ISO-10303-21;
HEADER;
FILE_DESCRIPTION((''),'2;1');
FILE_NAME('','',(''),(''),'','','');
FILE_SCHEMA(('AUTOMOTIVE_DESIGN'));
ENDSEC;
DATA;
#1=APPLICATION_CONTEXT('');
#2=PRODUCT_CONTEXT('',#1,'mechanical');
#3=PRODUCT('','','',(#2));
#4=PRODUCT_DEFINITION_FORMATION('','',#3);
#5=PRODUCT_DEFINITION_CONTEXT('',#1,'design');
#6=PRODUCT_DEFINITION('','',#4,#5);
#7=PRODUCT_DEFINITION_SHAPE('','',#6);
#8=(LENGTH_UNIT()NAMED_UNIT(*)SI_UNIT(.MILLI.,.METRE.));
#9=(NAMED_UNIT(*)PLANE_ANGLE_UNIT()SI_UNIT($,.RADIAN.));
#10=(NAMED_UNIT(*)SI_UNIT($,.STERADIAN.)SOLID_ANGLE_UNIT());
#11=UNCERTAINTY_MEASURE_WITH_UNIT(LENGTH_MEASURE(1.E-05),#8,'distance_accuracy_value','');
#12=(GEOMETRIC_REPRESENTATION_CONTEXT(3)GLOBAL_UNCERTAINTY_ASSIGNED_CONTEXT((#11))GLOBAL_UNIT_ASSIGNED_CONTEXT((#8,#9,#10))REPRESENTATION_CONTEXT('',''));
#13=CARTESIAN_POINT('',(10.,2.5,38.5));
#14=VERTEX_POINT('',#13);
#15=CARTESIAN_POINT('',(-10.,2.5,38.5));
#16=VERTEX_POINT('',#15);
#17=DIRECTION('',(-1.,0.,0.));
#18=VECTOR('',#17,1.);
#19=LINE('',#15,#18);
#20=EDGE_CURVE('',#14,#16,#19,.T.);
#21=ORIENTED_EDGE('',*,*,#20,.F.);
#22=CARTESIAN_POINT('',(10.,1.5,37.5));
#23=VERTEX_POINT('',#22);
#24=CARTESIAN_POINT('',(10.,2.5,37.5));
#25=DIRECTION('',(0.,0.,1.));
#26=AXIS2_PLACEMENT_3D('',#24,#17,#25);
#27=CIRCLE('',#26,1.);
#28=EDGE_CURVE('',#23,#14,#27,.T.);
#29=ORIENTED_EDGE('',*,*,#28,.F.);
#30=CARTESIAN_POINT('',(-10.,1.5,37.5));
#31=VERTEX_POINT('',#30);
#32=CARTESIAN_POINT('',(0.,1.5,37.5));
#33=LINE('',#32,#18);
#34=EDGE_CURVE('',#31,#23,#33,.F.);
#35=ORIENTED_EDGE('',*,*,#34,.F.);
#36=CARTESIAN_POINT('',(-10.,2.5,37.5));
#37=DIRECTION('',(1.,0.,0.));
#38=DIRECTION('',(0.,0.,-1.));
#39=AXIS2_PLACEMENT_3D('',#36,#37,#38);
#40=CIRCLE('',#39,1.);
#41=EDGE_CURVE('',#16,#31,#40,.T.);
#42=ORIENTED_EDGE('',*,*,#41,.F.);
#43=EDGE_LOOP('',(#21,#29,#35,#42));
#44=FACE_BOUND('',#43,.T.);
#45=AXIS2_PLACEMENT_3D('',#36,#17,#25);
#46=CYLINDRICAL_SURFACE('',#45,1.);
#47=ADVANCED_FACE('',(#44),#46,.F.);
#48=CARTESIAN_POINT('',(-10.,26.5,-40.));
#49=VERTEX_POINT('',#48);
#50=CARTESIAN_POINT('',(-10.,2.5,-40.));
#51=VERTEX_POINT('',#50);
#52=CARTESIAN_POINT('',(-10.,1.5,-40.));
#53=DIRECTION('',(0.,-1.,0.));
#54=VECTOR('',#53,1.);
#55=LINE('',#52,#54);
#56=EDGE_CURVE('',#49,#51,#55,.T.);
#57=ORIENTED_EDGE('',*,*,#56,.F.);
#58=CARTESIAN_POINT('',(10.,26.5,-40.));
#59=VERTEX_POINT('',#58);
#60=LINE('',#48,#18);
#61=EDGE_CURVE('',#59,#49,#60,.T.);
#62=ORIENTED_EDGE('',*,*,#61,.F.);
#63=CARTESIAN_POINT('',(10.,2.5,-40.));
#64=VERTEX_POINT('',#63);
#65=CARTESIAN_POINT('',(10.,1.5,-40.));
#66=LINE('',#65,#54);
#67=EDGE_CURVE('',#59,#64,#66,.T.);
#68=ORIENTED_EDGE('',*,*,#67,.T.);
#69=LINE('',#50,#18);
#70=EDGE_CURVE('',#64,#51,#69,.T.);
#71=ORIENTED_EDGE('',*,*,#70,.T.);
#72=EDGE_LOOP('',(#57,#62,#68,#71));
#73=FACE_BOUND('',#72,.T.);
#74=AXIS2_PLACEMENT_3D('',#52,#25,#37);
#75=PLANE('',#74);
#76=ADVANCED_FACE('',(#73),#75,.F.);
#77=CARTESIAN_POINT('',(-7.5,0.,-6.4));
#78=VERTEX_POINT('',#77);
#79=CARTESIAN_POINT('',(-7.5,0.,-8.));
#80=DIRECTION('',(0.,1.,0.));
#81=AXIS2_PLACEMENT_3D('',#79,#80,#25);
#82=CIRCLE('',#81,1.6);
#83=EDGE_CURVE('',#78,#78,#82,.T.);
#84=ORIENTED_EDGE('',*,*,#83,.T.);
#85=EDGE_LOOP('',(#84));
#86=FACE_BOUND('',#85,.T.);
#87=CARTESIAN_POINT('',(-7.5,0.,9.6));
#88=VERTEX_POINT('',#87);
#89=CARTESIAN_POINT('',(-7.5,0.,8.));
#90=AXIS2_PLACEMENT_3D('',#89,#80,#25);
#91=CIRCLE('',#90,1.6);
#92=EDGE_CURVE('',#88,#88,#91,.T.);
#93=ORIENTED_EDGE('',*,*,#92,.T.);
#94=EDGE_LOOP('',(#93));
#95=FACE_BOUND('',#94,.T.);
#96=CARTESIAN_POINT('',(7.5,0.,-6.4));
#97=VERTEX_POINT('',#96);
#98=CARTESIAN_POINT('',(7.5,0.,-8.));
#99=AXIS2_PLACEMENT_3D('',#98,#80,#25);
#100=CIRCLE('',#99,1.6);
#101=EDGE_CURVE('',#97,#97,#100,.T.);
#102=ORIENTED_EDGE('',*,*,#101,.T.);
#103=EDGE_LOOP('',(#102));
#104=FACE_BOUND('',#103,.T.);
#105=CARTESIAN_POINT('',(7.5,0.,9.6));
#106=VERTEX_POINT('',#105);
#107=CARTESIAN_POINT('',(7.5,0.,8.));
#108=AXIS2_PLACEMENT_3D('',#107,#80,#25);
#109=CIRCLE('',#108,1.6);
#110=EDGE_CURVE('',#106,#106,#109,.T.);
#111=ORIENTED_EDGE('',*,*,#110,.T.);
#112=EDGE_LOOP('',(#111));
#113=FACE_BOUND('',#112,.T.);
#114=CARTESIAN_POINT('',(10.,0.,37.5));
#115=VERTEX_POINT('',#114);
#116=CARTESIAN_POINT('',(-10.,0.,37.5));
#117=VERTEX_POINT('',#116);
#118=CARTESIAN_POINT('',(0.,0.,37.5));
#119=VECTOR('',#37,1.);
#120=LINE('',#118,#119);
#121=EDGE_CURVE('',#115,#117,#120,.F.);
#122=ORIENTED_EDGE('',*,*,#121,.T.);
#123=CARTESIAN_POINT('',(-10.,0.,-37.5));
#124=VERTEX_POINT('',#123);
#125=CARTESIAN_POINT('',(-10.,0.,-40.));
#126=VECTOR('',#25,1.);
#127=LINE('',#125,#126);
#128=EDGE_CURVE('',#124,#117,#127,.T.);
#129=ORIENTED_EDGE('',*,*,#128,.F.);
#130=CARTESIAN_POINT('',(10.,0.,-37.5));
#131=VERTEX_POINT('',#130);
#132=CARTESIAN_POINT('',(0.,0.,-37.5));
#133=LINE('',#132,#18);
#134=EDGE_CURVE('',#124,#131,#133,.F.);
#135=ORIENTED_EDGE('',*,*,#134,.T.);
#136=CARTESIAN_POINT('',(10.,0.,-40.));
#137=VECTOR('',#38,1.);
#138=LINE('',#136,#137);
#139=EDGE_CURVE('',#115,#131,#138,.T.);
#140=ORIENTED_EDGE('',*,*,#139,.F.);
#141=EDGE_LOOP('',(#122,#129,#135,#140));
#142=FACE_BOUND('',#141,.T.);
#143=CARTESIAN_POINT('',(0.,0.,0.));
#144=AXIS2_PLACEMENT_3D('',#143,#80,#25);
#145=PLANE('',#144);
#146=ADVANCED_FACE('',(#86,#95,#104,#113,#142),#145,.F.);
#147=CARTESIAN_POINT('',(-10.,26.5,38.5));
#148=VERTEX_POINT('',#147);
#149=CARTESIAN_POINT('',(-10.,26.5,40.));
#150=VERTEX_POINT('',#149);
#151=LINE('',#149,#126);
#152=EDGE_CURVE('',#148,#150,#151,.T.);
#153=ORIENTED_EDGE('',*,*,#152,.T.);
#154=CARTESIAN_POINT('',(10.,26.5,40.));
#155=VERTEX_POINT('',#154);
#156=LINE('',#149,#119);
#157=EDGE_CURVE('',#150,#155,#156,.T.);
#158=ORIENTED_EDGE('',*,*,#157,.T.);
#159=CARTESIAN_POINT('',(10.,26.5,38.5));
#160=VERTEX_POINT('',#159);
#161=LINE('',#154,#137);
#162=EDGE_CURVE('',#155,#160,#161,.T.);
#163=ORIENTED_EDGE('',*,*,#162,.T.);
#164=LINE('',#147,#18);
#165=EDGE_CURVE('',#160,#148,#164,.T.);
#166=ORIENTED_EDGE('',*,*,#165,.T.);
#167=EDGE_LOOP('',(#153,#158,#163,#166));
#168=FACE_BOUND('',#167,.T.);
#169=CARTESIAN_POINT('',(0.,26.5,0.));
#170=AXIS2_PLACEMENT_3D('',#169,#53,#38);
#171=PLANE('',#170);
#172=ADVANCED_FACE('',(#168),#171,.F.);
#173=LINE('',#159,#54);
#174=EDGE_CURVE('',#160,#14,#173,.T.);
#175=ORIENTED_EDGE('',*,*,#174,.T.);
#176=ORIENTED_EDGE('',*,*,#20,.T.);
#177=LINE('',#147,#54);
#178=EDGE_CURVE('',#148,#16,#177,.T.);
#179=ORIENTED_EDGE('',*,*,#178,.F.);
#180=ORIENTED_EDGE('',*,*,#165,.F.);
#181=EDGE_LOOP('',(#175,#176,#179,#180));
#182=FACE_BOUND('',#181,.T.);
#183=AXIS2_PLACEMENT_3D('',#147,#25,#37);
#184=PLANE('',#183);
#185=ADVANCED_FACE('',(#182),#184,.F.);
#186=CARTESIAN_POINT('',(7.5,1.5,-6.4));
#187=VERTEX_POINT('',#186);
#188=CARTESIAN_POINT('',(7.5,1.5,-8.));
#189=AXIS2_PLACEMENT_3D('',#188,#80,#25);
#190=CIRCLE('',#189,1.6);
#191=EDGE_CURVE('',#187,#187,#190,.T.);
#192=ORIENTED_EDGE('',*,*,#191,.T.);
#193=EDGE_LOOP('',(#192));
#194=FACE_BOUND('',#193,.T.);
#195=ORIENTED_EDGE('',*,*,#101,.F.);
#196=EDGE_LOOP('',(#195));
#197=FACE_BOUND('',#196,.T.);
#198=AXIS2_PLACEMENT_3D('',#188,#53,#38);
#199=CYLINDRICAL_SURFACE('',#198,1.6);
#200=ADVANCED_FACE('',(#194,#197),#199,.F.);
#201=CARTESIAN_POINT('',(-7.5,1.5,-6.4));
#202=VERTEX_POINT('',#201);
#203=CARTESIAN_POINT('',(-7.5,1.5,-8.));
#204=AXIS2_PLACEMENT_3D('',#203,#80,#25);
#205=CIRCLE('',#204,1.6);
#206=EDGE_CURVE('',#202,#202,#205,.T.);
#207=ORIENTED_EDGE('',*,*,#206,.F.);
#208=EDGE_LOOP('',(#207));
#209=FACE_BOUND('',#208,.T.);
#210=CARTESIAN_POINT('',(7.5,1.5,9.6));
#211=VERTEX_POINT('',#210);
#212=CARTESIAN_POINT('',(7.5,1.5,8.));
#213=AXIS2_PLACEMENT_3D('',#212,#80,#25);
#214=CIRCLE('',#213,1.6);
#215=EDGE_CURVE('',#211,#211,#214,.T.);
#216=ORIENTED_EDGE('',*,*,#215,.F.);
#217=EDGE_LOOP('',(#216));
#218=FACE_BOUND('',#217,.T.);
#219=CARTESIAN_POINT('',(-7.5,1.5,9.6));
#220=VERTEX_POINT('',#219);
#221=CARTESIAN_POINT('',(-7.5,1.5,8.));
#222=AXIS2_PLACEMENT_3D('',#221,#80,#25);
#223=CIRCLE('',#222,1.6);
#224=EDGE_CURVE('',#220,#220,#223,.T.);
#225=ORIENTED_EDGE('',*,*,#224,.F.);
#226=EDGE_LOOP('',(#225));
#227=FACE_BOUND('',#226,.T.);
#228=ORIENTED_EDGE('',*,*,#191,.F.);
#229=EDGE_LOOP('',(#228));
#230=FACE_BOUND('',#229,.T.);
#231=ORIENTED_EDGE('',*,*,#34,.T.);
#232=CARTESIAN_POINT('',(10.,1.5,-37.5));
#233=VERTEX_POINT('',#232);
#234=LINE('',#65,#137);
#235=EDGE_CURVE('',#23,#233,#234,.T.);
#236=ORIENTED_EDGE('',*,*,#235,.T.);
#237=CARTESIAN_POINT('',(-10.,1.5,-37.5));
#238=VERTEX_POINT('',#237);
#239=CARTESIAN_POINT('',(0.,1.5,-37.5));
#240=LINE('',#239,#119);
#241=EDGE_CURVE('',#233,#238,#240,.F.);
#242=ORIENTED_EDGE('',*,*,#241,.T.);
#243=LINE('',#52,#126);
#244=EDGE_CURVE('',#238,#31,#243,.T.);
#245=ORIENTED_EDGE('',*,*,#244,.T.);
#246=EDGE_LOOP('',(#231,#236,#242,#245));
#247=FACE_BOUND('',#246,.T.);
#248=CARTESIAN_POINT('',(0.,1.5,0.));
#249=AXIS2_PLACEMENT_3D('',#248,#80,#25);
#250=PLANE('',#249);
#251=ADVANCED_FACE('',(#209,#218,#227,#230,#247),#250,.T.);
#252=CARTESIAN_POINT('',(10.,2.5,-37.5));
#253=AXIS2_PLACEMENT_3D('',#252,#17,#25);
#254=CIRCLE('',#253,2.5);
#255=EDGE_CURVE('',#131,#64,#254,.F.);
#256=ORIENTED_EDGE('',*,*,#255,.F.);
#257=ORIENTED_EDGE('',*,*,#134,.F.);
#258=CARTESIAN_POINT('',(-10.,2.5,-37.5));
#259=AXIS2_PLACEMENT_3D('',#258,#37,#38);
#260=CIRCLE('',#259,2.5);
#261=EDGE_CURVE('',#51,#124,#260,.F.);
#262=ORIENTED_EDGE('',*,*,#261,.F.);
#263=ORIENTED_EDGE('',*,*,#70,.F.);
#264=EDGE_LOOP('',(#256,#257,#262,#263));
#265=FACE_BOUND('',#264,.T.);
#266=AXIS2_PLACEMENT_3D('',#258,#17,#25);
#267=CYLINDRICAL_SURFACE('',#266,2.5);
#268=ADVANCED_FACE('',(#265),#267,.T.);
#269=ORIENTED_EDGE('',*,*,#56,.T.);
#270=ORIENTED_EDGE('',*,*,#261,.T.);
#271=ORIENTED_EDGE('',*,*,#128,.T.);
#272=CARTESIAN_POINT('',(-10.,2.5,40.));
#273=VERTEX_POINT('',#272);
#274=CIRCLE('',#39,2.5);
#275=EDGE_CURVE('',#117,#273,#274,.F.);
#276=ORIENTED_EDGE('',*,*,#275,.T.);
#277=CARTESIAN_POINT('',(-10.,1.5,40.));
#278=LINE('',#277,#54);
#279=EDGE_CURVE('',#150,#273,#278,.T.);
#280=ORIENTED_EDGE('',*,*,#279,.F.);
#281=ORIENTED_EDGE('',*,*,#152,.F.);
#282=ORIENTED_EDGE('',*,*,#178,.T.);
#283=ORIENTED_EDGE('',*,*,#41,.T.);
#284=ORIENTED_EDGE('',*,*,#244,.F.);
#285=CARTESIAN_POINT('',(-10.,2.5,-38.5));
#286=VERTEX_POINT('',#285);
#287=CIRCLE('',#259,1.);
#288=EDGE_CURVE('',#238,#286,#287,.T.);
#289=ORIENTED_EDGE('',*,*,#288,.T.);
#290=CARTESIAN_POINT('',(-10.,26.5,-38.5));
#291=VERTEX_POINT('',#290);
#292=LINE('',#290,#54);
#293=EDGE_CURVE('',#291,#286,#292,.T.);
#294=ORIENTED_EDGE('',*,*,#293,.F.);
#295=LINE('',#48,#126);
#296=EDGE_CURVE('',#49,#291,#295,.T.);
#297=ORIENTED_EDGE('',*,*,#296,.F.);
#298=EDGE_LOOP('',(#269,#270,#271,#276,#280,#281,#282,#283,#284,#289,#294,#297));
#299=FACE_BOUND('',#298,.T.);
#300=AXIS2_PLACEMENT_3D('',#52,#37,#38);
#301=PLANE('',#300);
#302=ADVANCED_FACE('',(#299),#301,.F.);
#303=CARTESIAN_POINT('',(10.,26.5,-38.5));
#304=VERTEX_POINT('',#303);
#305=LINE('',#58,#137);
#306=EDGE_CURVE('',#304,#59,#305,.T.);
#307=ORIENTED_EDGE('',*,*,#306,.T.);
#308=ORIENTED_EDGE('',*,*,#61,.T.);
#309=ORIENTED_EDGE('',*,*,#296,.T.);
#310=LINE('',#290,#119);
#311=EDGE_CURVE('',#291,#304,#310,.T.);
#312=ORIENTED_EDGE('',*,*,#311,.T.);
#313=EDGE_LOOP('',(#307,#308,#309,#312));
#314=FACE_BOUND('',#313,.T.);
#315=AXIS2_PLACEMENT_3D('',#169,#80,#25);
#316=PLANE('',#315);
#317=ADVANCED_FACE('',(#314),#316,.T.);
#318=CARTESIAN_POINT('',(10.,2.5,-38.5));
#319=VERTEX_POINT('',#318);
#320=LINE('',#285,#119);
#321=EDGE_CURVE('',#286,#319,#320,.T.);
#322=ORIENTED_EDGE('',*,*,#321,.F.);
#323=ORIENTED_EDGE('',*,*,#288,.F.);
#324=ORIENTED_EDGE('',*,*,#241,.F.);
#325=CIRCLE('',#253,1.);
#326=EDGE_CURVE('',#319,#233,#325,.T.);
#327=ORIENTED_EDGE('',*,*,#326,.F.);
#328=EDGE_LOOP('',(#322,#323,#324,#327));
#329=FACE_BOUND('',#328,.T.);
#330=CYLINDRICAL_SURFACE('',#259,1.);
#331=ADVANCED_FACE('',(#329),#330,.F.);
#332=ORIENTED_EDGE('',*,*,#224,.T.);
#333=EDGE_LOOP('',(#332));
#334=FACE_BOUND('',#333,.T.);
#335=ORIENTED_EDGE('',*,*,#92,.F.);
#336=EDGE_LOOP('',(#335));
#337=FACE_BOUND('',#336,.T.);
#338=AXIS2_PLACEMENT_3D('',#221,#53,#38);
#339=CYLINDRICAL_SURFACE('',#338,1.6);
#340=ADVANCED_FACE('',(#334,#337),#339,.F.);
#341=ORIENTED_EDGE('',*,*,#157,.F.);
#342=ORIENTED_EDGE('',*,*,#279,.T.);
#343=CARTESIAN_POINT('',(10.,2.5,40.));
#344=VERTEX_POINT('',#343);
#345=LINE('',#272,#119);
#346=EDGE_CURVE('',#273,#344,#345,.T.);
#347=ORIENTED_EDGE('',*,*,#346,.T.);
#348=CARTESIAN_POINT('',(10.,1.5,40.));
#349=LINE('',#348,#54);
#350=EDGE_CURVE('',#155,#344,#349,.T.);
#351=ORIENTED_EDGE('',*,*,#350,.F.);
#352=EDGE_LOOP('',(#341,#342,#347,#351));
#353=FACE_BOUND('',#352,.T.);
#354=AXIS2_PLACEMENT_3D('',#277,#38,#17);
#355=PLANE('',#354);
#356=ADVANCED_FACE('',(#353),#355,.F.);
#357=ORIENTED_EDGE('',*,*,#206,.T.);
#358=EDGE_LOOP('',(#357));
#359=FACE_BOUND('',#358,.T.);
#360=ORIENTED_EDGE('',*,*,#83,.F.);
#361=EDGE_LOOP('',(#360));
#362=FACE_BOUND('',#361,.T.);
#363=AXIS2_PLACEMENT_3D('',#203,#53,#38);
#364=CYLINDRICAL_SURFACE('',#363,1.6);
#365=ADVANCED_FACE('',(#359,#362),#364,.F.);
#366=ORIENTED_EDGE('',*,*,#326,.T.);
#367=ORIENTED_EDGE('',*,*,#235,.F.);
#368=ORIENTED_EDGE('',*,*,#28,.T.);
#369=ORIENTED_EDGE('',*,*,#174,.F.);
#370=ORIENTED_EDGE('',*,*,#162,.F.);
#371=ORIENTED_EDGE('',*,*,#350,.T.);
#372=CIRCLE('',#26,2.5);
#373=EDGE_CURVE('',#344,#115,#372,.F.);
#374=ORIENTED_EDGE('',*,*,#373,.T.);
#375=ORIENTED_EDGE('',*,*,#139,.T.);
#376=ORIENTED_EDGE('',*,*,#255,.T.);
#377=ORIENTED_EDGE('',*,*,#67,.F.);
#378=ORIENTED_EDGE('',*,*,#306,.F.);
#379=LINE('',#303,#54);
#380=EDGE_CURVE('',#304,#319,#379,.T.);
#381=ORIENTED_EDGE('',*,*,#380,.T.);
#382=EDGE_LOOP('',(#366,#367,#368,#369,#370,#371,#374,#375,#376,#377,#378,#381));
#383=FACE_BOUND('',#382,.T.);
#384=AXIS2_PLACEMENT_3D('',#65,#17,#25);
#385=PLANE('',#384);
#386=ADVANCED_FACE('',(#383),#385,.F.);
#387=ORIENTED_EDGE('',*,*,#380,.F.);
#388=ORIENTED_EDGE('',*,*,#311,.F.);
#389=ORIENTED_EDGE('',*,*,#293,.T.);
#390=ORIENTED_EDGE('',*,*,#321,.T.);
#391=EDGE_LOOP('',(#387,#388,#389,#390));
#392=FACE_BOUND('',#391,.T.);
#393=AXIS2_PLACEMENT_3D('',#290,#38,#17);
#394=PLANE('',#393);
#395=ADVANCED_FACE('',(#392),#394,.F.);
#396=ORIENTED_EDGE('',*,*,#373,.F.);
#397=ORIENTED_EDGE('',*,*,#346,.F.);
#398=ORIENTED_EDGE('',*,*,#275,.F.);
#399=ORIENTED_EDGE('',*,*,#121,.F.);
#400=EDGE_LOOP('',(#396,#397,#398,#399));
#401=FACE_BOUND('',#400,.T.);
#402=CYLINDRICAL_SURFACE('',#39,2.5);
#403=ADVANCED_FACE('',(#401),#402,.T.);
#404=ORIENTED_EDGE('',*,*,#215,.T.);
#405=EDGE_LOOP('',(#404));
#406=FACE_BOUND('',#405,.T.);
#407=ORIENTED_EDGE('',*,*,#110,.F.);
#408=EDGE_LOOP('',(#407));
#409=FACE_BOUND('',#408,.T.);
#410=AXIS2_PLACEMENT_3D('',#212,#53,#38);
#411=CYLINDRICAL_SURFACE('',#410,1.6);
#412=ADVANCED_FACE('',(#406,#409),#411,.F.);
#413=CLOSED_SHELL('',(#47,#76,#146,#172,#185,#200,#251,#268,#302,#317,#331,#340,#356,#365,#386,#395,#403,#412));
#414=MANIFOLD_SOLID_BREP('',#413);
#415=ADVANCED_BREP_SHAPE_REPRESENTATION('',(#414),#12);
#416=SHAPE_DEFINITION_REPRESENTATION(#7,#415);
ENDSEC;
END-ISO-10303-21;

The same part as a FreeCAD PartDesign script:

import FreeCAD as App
import Part
import Sketcher


def edges_at(feature, points):
    """Names of the edges that pass closest to the given points."""
    edges = feature.Shape.Edges
    near = lambda p: min(range(len(edges)), key=lambda i: edges[i].distToShape(Part.Vertex(*p))[0])
    return sorted({f"Edge{near(p) + 1}" for p in points})

doc = App.newDocument("Part")
body = doc.addObject("PartDesign::Body", "Body")

# Sketch on XZ plane
sketch1 = doc.addObject("Sketcher::SketchObject", "Sketch")
body.addObject(sketch1)
sketch1.AttachmentSupport = (doc.XZ_Plane, [""])
sketch1.MapMode = "FlatFace"
sketch1.addGeometry([
    Part.LineSegment(App.Vector(-10, -40, 0), App.Vector(-10, 40, 0)),  # 0
    Part.LineSegment(App.Vector(-10, 40, 0), App.Vector(10, 40, 0)),  # 1
    Part.LineSegment(App.Vector(10, 40, 0), App.Vector(10, -40, 0)),  # 2
    Part.LineSegment(App.Vector(10, -40, 0), App.Vector(-10, -40, 0)),  # 3
    Part.Circle(App.Vector(-7.5, 8, 0), App.Vector(0, 0, 1), 1.6),  # 4
    Part.Circle(App.Vector(7.5, 8, 0), App.Vector(0, 0, 1), 1.6),  # 5
    Part.Circle(App.Vector(-7.5, -8, 0), App.Vector(0, 0, 1), 1.6),  # 6
    Part.Circle(App.Vector(7.5, -8, 0), App.Vector(0, 0, 1), 1.6),  # 7
], False)
sketch1.addConstraint([
    Sketcher.Constraint("Coincident", 0, 2, 1, 1),
    Sketcher.Constraint("Coincident", 1, 2, 2, 1),
    Sketcher.Constraint("Coincident", 2, 2, 3, 1),
    Sketcher.Constraint("Coincident", 3, 2, 0, 1),
    Sketcher.Constraint("Vertical", 0),
    Sketcher.Constraint("Horizontal", 1),
    Sketcher.Constraint("Vertical", 2),
    Sketcher.Constraint("Horizontal", 3),
    Sketcher.Constraint("Equal", 4, 5),
    Sketcher.Constraint("Equal", 5, 6),
    Sketcher.Constraint("Equal", 6, 7),
    Sketcher.Constraint("Symmetric", 5, 3, 6, 3, -1, 1),
    Sketcher.Constraint("Symmetric", 4, 3, 7, 3, -1, 1),
    Sketcher.Constraint("Symmetric", 0, 2, 2, 2, -1, 1),
    Sketcher.Constraint("Symmetric", 4, 3, 5, 3, -2),
    Sketcher.Constraint("Diameter", 4, 3.2),
    Sketcher.Constraint("DistanceX", 1, 1, 1, 2, 20.0),
    Sketcher.Constraint("DistanceY", 0, 1, 0, 2, 80.0),
    Sketcher.Constraint("DistanceY", -1, 1, 4, 3, 8.0),
    Sketcher.Constraint("DistanceX", 4, 3, 5, 3, 15.0),
])
pad1 = doc.addObject("PartDesign::Pad", "Pad")
body.addObject(pad1)
pad1.Profile = sketch1
pad1.Length = 1.5
pad1.Reversed = True

# Sketch on XZ plane
sketch2 = doc.addObject("Sketcher::SketchObject", "Sketch001")
body.addObject(sketch2)
sketch2.AttachmentSupport = (doc.XZ_Plane, [""])
sketch2.MapMode = "FlatFace"
sketch2.AttachmentOffset = App.Placement(App.Vector(0, 0, -1.5), App.Rotation())
sketch2.addGeometry([
    Part.LineSegment(App.Vector(-10, -40, 0), App.Vector(-10, -38.5, 0)),  # 0
    Part.LineSegment(App.Vector(-10, -38.5, 0), App.Vector(10, -38.5, 0)),  # 1
    Part.LineSegment(App.Vector(10, -38.5, 0), App.Vector(10, -40, 0)),  # 2
    Part.LineSegment(App.Vector(10, -40, 0), App.Vector(-10, -40, 0)),  # 3
    Part.LineSegment(App.Vector(-10, 38.5, 0), App.Vector(-10, 40, 0)),  # 4
    Part.LineSegment(App.Vector(-10, 40, 0), App.Vector(10, 40, 0)),  # 5
    Part.LineSegment(App.Vector(10, 40, 0), App.Vector(10, 38.5, 0)),  # 6
    Part.LineSegment(App.Vector(10, 38.5, 0), App.Vector(-10, 38.5, 0)),  # 7
], False)
sketch2.addConstraint([
    Sketcher.Constraint("Coincident", 0, 2, 1, 1),
    Sketcher.Constraint("Coincident", 1, 2, 2, 1),
    Sketcher.Constraint("Coincident", 2, 2, 3, 1),
    Sketcher.Constraint("Coincident", 3, 2, 0, 1),
    Sketcher.Constraint("Coincident", 4, 2, 5, 1),
    Sketcher.Constraint("Coincident", 5, 2, 6, 1),
    Sketcher.Constraint("Coincident", 6, 2, 7, 1),
    Sketcher.Constraint("Coincident", 7, 2, 4, 1),
    Sketcher.Constraint("Vertical", 0),
    Sketcher.Constraint("Horizontal", 1),
    Sketcher.Constraint("Vertical", 2),
    Sketcher.Constraint("Horizontal", 3),
    Sketcher.Constraint("Vertical", 4),
    Sketcher.Constraint("Horizontal", 5),
    Sketcher.Constraint("Vertical", 6),
    Sketcher.Constraint("Horizontal", 7),
    Sketcher.Constraint("Symmetric", 2, 2, 4, 2, -1, 1),
    Sketcher.Constraint("Symmetric", 0, 2, 6, 2, -1, 1),
    Sketcher.Constraint("Vertical", 3, 2, 4, 2),
    Sketcher.Constraint("DistanceX", 1, 1, 1, 2, 20.0),
    Sketcher.Constraint("DistanceY", 0, 1, 0, 2, 1.5),
    Sketcher.Constraint("DistanceY", 2, 2, -1, 1, 40.0),
])
pad2 = doc.addObject("PartDesign::Pad", "Pad001")
body.addObject(pad2)
pad2.Profile = sketch2
pad2.Length = 25
pad2.Reversed = True
doc.recompute()

fillet = doc.addObject("PartDesign::Fillet", "Fillet")
body.addObject(fillet)
fillet.Base = (pad2, edges_at(pad2, [(0, 1.5, -38.5), (0, 1.5, 38.5)]))
fillet.Radius = 1
doc.recompute()

fillet2 = doc.addObject("PartDesign::Fillet", "Fillet001")
body.addObject(fillet2)
fillet2.Base = (fillet, edges_at(fillet, [(0, 0, 40), (0, 0, -40)]))
fillet2.Radius = 2.5

doc.recompute()
